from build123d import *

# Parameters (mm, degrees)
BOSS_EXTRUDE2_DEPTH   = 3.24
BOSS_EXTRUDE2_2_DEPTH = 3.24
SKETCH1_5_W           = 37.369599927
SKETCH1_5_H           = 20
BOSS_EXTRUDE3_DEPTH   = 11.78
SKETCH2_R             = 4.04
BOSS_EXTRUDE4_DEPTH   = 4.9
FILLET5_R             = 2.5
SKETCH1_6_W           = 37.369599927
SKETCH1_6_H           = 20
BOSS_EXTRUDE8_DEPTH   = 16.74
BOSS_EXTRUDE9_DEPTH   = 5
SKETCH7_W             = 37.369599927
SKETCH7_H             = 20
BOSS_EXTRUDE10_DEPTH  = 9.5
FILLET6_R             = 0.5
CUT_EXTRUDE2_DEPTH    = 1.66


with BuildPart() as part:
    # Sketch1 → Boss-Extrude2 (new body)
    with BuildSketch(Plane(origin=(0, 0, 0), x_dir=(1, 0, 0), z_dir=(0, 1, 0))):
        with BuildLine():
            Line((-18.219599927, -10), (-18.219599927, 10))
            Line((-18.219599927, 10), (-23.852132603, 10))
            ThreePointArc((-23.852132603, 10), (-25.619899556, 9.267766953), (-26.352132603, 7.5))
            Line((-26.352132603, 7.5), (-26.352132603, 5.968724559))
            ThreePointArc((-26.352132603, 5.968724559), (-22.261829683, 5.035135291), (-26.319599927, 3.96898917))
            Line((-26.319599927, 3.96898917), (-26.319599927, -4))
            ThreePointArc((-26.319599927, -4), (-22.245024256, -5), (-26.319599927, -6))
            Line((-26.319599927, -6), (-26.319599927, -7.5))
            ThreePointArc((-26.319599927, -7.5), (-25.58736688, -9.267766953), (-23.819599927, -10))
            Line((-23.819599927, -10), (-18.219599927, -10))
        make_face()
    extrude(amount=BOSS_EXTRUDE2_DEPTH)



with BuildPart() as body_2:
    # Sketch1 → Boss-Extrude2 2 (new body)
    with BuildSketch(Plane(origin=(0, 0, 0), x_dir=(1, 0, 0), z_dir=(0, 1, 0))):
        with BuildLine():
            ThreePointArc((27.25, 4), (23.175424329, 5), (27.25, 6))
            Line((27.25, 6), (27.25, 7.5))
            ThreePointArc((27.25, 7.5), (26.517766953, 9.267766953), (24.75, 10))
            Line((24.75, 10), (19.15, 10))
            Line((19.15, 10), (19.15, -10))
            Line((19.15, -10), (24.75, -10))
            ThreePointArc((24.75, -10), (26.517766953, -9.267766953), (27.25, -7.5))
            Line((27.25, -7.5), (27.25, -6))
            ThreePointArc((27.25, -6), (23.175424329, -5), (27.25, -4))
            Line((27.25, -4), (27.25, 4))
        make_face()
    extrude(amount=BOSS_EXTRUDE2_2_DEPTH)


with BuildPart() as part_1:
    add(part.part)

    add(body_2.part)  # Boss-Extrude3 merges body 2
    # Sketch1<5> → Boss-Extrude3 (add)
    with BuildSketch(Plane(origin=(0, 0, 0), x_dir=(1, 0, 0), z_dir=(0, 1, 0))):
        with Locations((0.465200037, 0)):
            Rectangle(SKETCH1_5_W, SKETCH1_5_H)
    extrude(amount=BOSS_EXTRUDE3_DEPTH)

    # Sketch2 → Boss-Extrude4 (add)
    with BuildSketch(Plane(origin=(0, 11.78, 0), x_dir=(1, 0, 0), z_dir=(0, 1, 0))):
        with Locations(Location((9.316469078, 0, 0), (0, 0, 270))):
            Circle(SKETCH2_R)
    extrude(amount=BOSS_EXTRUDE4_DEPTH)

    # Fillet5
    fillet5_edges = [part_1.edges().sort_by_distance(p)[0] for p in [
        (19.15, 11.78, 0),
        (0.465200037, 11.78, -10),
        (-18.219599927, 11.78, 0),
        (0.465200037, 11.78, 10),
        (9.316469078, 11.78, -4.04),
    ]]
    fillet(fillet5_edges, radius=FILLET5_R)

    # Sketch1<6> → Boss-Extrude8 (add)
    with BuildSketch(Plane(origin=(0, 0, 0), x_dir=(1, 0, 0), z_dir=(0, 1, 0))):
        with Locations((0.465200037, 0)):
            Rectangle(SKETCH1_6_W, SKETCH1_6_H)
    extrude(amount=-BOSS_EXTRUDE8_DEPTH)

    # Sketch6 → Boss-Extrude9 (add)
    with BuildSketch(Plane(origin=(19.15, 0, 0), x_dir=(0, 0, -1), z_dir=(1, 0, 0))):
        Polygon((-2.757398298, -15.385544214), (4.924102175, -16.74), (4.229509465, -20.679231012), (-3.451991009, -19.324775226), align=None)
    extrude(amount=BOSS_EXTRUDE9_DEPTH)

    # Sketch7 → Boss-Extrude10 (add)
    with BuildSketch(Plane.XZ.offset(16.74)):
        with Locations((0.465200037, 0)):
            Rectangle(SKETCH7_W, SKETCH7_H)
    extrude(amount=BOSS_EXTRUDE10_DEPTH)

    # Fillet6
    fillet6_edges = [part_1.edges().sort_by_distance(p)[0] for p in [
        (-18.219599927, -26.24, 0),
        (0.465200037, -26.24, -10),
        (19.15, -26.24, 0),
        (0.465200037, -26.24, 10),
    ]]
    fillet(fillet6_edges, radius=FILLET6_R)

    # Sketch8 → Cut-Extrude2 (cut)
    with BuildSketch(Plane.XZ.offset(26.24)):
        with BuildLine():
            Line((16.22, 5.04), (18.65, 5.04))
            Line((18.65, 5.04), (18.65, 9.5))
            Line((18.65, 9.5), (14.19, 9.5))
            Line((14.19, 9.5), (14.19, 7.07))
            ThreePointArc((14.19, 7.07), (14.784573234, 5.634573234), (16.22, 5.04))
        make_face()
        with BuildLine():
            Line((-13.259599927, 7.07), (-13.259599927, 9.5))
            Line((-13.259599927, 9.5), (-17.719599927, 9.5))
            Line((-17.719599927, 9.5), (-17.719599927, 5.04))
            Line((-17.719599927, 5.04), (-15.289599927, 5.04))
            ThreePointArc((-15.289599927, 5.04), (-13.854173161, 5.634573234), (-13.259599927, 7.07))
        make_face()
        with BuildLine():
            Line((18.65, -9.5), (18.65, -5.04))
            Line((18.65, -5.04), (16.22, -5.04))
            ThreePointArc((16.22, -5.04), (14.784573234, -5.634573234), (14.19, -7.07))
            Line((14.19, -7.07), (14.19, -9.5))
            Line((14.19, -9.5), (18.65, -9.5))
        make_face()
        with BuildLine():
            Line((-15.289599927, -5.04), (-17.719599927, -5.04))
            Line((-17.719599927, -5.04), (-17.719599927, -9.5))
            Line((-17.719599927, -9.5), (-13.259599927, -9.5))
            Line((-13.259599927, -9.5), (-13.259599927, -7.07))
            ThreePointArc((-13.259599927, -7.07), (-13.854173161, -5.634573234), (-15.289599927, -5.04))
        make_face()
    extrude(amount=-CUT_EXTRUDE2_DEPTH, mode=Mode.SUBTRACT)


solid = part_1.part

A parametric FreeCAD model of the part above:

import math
import FreeCAD as App
import Part
import Sketcher
from FreeCAD import Vector
Q = App.Units.Quantity


def edges_at(feature, points):
    """Names of the edges that pass closest to the given points."""
    edges = feature.Shape.Edges
    near = lambda p: min(range(len(edges)), key=lambda i: edges[i].distToShape(Part.Vertex(*p))[0])
    return sorted({f"Edge{near(p) + 1}" for p in points})


def add_polygon(sketch, points):
    """Adds a closed chain of lines whose ends are joined by coincident constraints."""
    first, n = sketch.GeometryCount, len(points)
    for a, b in zip(points, points[1:] + points[:1]):
        sketch.addGeometry(Part.LineSegment(App.Vector(*a, 0), App.Vector(*b, 0)), False)
    for i in range(n):
        sketch.addConstraint(Sketcher.Constraint("Coincident", first + i, 2, first + (i + 1) % n, 1))

doc = App.newDocument("Part")
body = doc.addObject("PartDesign::Body", "Body")

# Sketch on XZ plane
sketch1 = body.newObject("Sketcher::SketchObject", "Sketch")
sketch1.AttachmentSupport = (doc.getObject("XZ_Plane"), [""])
sketch1.MapMode = "FlatFace"
sketch1.addGeometry([
    Part.LineSegment(Vector(-18.2, 10, 0), Vector(-18.2, -10, 0)),  # 0
    Part.LineSegment(Vector(-18.2, -10, 0), Vector(-23.9, -10, 0)),  # 1
    Part.ArcOfCircle(Part.Circle(Vector(-23.9, -7.5, 0), Vector(0, 0, 1), 2.5), math.radians(180), math.radians(270)),  # 2
    Part.LineSegment(Vector(-26.4, -7.5, 0), Vector(-26.4, -6, 0)),  # 3
    Part.ArcOfCircle(Part.Circle(Vector(-24.4, -5, 0), Vector(0, 0, 1), 2.2), math.radians(-153), math.radians(151)),  # 4
    Part.LineSegment(Vector(-26.3, -4, 0), Vector(-26.3, 4, 0)),  # 5
    Part.ArcOfCircle(Part.Circle(Vector(-24.4, 5, 0), Vector(0, 0, 1), 2.2), math.radians(-152), math.radians(152)),  # 6
    Part.LineSegment(Vector(-26.3, 6, 0), Vector(-26.3, 7.5, 0)),  # 7
    Part.ArcOfCircle(Part.Circle(Vector(-23.8, 7.5, 0), Vector(0, 0, 1), 2.5), math.radians(90), math.radians(180)),  # 8
    Part.LineSegment(Vector(-23.8, 10, 0), Vector(-18.2, 10, 0)),  # 9
], False)
sketch1.addConstraint([
    Sketcher.Constraint("Coincident", 0, 2, 1, 1),
    Sketcher.Constraint("Tangent", 1, 2, 2, 2),
    Sketcher.Constraint("Tangent", 2, 1, 3, 1),
    Sketcher.Constraint("Coincident", 3, 2, 4, 1),
    Sketcher.Constraint("Coincident", 4, 2, 5, 1),
    Sketcher.Constraint("Coincident", 5, 2, 6, 1),
    Sketcher.Constraint("Coincident", 6, 2, 7, 1),
    Sketcher.Constraint("Tangent", 7, 2, 8, 2),
    Sketcher.Constraint("Tangent", 8, 1, 9, 1),
    Sketcher.Constraint("Coincident", 9, 2, 0, 1),
    Sketcher.Constraint("Vertical", 0),
    Sketcher.Constraint("Horizontal", 1),
    Sketcher.Constraint("Vertical", 3),
    Sketcher.Constraint("Vertical", 5),
    Sketcher.Constraint("Vertical", 7),
    Sketcher.Constraint("Horizontal", 9),
    Sketcher.Constraint("Equal", 4, 6),
    Sketcher.Constraint("Equal", 2, 8),
    Sketcher.Constraint("Vertical", 5, 2, 6, 2),
    Sketcher.Constraint("Radius", 2, Q("2.5 mm")),
    Sketcher.Constraint("DistanceY", 0, 2, 0, 1, Q("20 mm")),
    Sketcher.Constraint("Radius", 4, Q("2.16 mm")),
    Sketcher.Constraint("DistanceX", 9, 1, 9, 2, Q("5.6 mm")),
    Sketcher.Constraint("DistanceY", 7, 1, 7, 2, Q("1.5 mm")),
    Sketcher.Constraint("DistanceY", 4, 3, -1, 1, Q("5 mm")),
    Sketcher.Constraint("DistanceY", -1, 1, 6, 3, Q("5 mm")),
    Sketcher.Constraint("DistanceY", 0, 2, -1, 1, Q("10 mm")),
    Sketcher.Constraint("DistanceY", 5, 1, 5, 2, Q("7.968989 mm")),
    Sketcher.Constraint("DistanceX", 8, 3, -1, 1, Q("23.8196 mm")),
    Sketcher.Constraint("DistanceX", 1, 2, 1, 1, Q("5.632533 mm")),
])
pad1 = body.newObject("PartDesign::Pad", "Pad")
pad1.Profile = sketch1
pad1.Length = 3.24
pad1.Reversed = True
body2 = doc.addObject("PartDesign::Body", "Body001")

# Sketch on XZ plane
sketch2 = body2.newObject("Sketcher::SketchObject", "Sketch001")
sketch2.AttachmentSupport = (doc.getObject("XZ_Plane001"), [""])
sketch2.MapMode = "FlatFace"
sketch2.addGeometry([
    Part.ArcOfCircle(Part.Circle(Vector(25.3, -5, 0), Vector(0, 0, 1), 2.2), math.radians(28), math.radians(332)),  # 0
    Part.LineSegment(Vector(27.2, -6, 0), Vector(27.2, -7.5, 0)),  # 1
    Part.ArcOfCircle(Part.Circle(Vector(24.8, -7.5, 0), Vector(0, 0, 1), 2.5), math.radians(-90), math.radians(0)),  # 2
    Part.LineSegment(Vector(24.8, -10, 0), Vector(19.1, -10, 0)),  # 3
    Part.LineSegment(Vector(19.1, -10, 0), Vector(19.1, 10, 0)),  # 4
    Part.LineSegment(Vector(19.1, 10, 0), Vector(24.8, 10, 0)),  # 5
    Part.ArcOfCircle(Part.Circle(Vector(24.8, 7.5, 0), Vector(0, 0, 1), 2.5), math.radians(0), math.radians(90)),  # 6
    Part.LineSegment(Vector(27.2, 7.5, 0), Vector(27.2, 6, 0)),  # 7
    Part.ArcOfCircle(Part.Circle(Vector(25.3, 5, 0), Vector(0, 0, 1), 2.2), math.radians(28), math.radians(332)),  # 8
    Part.LineSegment(Vector(27.2, 4, 0), Vector(27.2, -4, 0)),  # 9
], False)
sketch2.addConstraint([
    Sketcher.Constraint("Coincident", 0, 2, 1, 1),
    Sketcher.Constraint("Tangent", 1, 2, 2, 2),
    Sketcher.Constraint("Tangent", 2, 1, 3, 1),
    Sketcher.Constraint("Coincident", 3, 2, 4, 1),
    Sketcher.Constraint("Coincident", 4, 2, 5, 1),
    Sketcher.Constraint("Tangent", 5, 2, 6, 2),
    Sketcher.Constraint("Tangent", 6, 1, 7, 1),
    Sketcher.Constraint("Coincident", 7, 2, 8, 1),
    Sketcher.Constraint("Coincident", 8, 2, 9, 1),
    Sketcher.Constraint("Coincident", 9, 2, 0, 1),
    Sketcher.Constraint("Vertical", 1),
    Sketcher.Constraint("Horizontal", 3),
    Sketcher.Constraint("Vertical", 4),
    Sketcher.Constraint("Horizontal", 5),
    Sketcher.Constraint("Vertical", 7),
    Sketcher.Constraint("Vertical", 9),
    Sketcher.Constraint("Equal", 2, 6),
    Sketcher.Constraint("Equal", 0, 8),
    Sketcher.Constraint("Symmetric", 2, 3, 6, 3, -1),
    Sketcher.Constraint("Symmetric", 0, 3, 8, 3, -1),
    Sketcher.Constraint("Vertical", 7, 2, 8, 2),
    Sketcher.Constraint("Radius", 2, Q("2.5 mm")),
    Sketcher.Constraint("DistanceY", 4, 1, 4, 2, Q("20 mm")),
    Sketcher.Constraint("DistanceY", 9, 2, 9, 1, Q("8 mm")),
    Sketcher.Constraint("Radius", 0, Q("2.16 mm")),
    Sketcher.Constraint("DistanceX", 3, 2, 3, 1, Q("5.6 mm")),
    Sketcher.Constraint("DistanceY", 1, 2, 1, 1, Q("1.5 mm")),
    Sketcher.Constraint("DistanceX", -1, 1, 2, 3, Q("24.75 mm")),
])
pad2 = body2.newObject("PartDesign::Pad", "Pad001")
pad2.Profile = sketch2
pad2.Length = 3.24
pad2.Reversed = True
body.AllowCompound = True
doc.recompute()

boolean = body.newObject("PartDesign::Boolean", "Boolean")
boolean.Type = "Fuse"
boolean.addObjects([body2])

# Sketch on XZ plane
sketch3 = body.newObject("Sketcher::SketchObject", "Sketch002")
sketch3.AttachmentSupport = (doc.getObject("XZ_Plane"), [""])
sketch3.MapMode = "FlatFace"
add_polygon(sketch3, [(-18, -10), (-18, 10), (19, 10), (19, -10)])  # lines 0-3
sketch3.addConstraint([
    Sketcher.Constraint("Vertical", 0),
    Sketcher.Constraint("Horizontal", 1),
    Sketcher.Constraint("Vertical", 2),
    Sketcher.Constraint("Horizontal", 3),
    Sketcher.Constraint("DistanceY", 0, 1, 0, 2, Q("20 mm")),
    Sketcher.Constraint("DistanceY", -1, 1, 0, 2, Q("10 mm")),
    Sketcher.Constraint("DistanceX", -1, 1, 1, 2, Q("19.15 mm")),
    Sketcher.Constraint("DistanceX", 1, 1, 1, 2, Q("37.3696 mm")),
])
pad3 = body.newObject("PartDesign::Pad", "Pad002")
pad3.Profile = sketch3
pad3.Length = 11.78
pad3.Reversed = True

# Sketch on XZ plane
sketch4 = body.newObject("Sketcher::SketchObject", "Sketch003")
sketch4.AttachmentSupport = (doc.getObject("XZ_Plane"), [""])
sketch4.MapMode = "FlatFace"
sketch4.AttachmentOffset = App.Placement(Vector(0, 0, -11.78), App.Rotation())
sketch4.addGeometry(Part.Circle(Vector(9.3, 0, 0), Vector(0, 0, 1), 4), False)
sketch4.addConstraint([
    Sketcher.Constraint("PointOnObject", 0, 3, -1),
    Sketcher.Constraint("Diameter", 0, Q("8.08 mm")),
    Sketcher.Constraint("DistanceX", -1, 1, 0, 3, Q("9.316469 mm")),
])
pad4 = body.newObject("PartDesign::Pad", "Pad003")
pad4.Profile = sketch4
pad4.Length = 4.9
pad4.Reversed = True
doc.recompute()

fillet = body.newObject("PartDesign::Fillet", "Fillet")
fillet.Base = (pad4, edges_at(pad4, [
    (19.15, 11.78, 0),
    (0.465, 11.78, -10),
    (-18.22, 11.78, 0),
    (0.465, 11.78, 10),
    (9.316, 11.78, -4.04),
]))
fillet.Radius = 2.5

# Sketch on XZ plane
sketch5 = body.newObject("Sketcher::SketchObject", "Sketch004")
sketch5.AttachmentSupport = (doc.getObject("XZ_Plane"), [""])
sketch5.MapMode = "FlatFace"
add_polygon(sketch5, [(-18, -10), (-18, 10), (19, 10), (19, -10)])  # lines 0-3
sketch5.addConstraint([
    Sketcher.Constraint("Vertical", 0),
    Sketcher.Constraint("Horizontal", 1),
    Sketcher.Constraint("Vertical", 2),
    Sketcher.Constraint("Horizontal", 3),
    Sketcher.Constraint("DistanceY", 0, 1, 0, 2, Q("20 mm")),
    Sketcher.Constraint("DistanceY", -1, 1, 0, 2, Q("10 mm")),
    Sketcher.Constraint("DistanceX", -1, 1, 1, 2, Q("19.15 mm")),
    Sketcher.Constraint("DistanceX", 1, 1, 1, 2, Q("37.3696 mm")),
])
pad5 = body.newObject("PartDesign::Pad", "Pad004")
pad5.Profile = sketch5
pad5.Length = 16.74

# Sketch on YZ plane
sketch6 = body.newObject("Sketcher::SketchObject", "Sketch005")
sketch6.AttachmentSupport = (doc.getObject("YZ_Plane"), [""])
sketch6.MapMode = "FlatFace"
sketch6.AttachmentOffset = App.Placement(Vector(0, 0, 19.15), App.Rotation())
add_polygon(sketch6, [(-16.7, -4.9), (-15.4, 2.8), (-19.3, 3.5), (-20.7, -4.2)])  # lines 0-3
sketch6.addConstraint([
    Sketcher.Constraint("Perpendicular", 0, 1),
    Sketcher.Constraint("Perpendicular", 1, 2),
    Sketcher.Constraint("Perpendicular", 2, 3),
    Sketcher.Constraint("Angle", 0, Q("80 deg")),
    Sketcher.Constraint("Distance", 1, Q("4 mm")),
    Sketcher.Constraint("Distance", 0, Q("7.8 mm")),
    Sketcher.Constraint("DistanceX", 3, 2, -1, 1, Q("16.74 mm")),
    Sketcher.Constraint("DistanceY", -1, 1, 0, 2, Q("2.757398 mm")),
])
pad6 = body.newObject("PartDesign::Pad", "Pad005")
pad6.Profile = sketch6
pad6.Length = 5

# Sketch on XZ plane
sketch7 = body.newObject("Sketcher::SketchObject", "Sketch006")
sketch7.AttachmentSupport = (doc.getObject("XZ_Plane"), [""])
sketch7.MapMode = "FlatFace"
sketch7.AttachmentOffset = App.Placement(Vector(0, 0, 16.74), App.Rotation())
add_polygon(sketch7, [(-18, 10), (-18, -10), (19, -10), (19, 10)])  # lines 0-3
sketch7.addConstraint([
    Sketcher.Constraint("Vertical", 0),
    Sketcher.Constraint("Horizontal", 1),
    Sketcher.Constraint("Vertical", 2),
    Sketcher.Constraint("Horizontal", 3),
    Sketcher.Constraint("DistanceY", 0, 2, 0, 1, Q("20 mm")),
    Sketcher.Constraint("DistanceY", 0, 2, -1, 1, Q("10 mm")),
    Sketcher.Constraint("DistanceX", -1, 1, 1, 2, Q("19.15 mm")),
    Sketcher.Constraint("DistanceX", 1, 1, 1, 2, Q("37.3696 mm")),
])
pad7 = body.newObject("PartDesign::Pad", "Pad006")
pad7.Profile = sketch7
pad7.Length = 9.5
doc.recompute()

fillet2 = body.newObject("PartDesign::Fillet", "Fillet001")
fillet2.Base = (pad7, edges_at(pad7, [
    (-18.22, -26.24, 0),
    (0.465, -26.24, -10),
    (19.15, -26.24, 0),
    (0.465, -26.24, 10),
]))
fillet2.Radius = 0.5

# Sketch on XZ plane
sketch8 = body.newObject("Sketcher::SketchObject", "Sketch007")
sketch8.AttachmentSupport = (doc.getObject("XZ_Plane"), [""])
sketch8.MapMode = "FlatFace"
sketch8.AttachmentOffset = App.Placement(Vector(0, 0, 26.24), App.Rotation())
sketch8.addGeometry([
    Part.LineSegment(Vector(16.2, 5, 0), Vector(18.6, 5, 0)),  # 0
    Part.LineSegment(Vector(18.6, 5, 0), Vector(18.6, 9.5, 0)),  # 1
    Part.LineSegment(Vector(18.6, 9.5, 0), Vector(14.2, 9.5, 0)),  # 2
    Part.LineSegment(Vector(14.2, 9.5, 0), Vector(14.2, 7.1, 0)),  # 3
    Part.ArcOfCircle(Part.Circle(Vector(16.2, 7.1, 0), Vector(0, 0, 1), 2), math.radians(180), math.radians(270)),  # 4
    Part.LineSegment(Vector(-13.3, 7.1, 0), Vector(-13.3, 9.5, 0)),  # 5
    Part.LineSegment(Vector(-13.3, 9.5, 0), Vector(-17.7, 9.5, 0)),  # 6
    Part.LineSegment(Vector(-17.7, 9.5, 0), Vector(-17.7, 5, 0)),  # 7
    Part.LineSegment(Vector(-17.7, 5, 0), Vector(-15.3, 5, 0)),  # 8
    Part.ArcOfCircle(Part.Circle(Vector(-15.3, 7.1, 0), Vector(0, 0, 1), 2), math.radians(-90), math.radians(0)),  # 9
    Part.LineSegment(Vector(18.6, -9.5, 0), Vector(18.6, -5, 0)),  # 10
    Part.LineSegment(Vector(18.6, -5, 0), Vector(16.2, -5, 0)),  # 11
    Part.ArcOfCircle(Part.Circle(Vector(16.2, -7.1, 0), Vector(0, 0, 1), 2), math.radians(90), math.radians(180)),  # 12
    Part.LineSegment(Vector(14.2, -7.1, 0), Vector(14.2, -9.5, 0)),  # 13
    Part.LineSegment(Vector(14.2, -9.5, 0), Vector(18.6, -9.5, 0)),  # 14
    Part.LineSegment(Vector(-15.3, -5, 0), Vector(-17.7, -5, 0)),  # 15
    Part.LineSegment(Vector(-17.7, -5, 0), Vector(-17.7, -9.5, 0)),  # 16
    Part.LineSegment(Vector(-17.7, -9.5, 0), Vector(-13.3, -9.5, 0)),  # 17
    Part.LineSegment(Vector(-13.3, -9.5, 0), Vector(-13.3, -7.1, 0)),  # 18
    Part.ArcOfCircle(Part.Circle(Vector(-15.3, -7.1, 0), Vector(0, 0, 1), 2), math.radians(0), math.radians(90)),  # 19
], False)
sketch8.addConstraint([
    Sketcher.Constraint("Coincident", 0, 2, 1, 1),
    Sketcher.Constraint("Coincident", 1, 2, 2, 1),
    Sketcher.Constraint("Coincident", 2, 2, 3, 1),
    Sketcher.Constraint("Tangent", 3, 2, 4, 1),
    Sketcher.Constraint("Tangent", 4, 2, 0, 1),
    Sketcher.Constraint("Coincident", 5, 2, 6, 1),
    Sketcher.Constraint("Coincident", 6, 2, 7, 1),
    Sketcher.Constraint("Coincident", 7, 2, 8, 1),
    Sketcher.Constraint("Tangent", 8, 2, 9, 1),
    Sketcher.Constraint("Tangent", 9, 2, 5, 1),
    Sketcher.Constraint("Coincident", 10, 2, 11, 1),
    Sketcher.Constraint("Tangent", 11, 2, 12, 1),
    Sketcher.Constraint("Tangent", 12, 2, 13, 1),
    Sketcher.Constraint("Coincident", 13, 2, 14, 1),
    Sketcher.Constraint("Coincident", 14, 2, 10, 1),
    Sketcher.Constraint("Coincident", 15, 2, 16, 1),
    Sketcher.Constraint("Coincident", 16, 2, 17, 1),
    Sketcher.Constraint("Coincident", 17, 2, 18, 1),
    Sketcher.Constraint("Tangent", 18, 2, 19, 1),
    Sketcher.Constraint("Tangent", 19, 2, 15, 1),
    Sketcher.Constraint("Horizontal", 0),
    Sketcher.Constraint("Vertical", 1),
    Sketcher.Constraint("Horizontal", 2),
    Sketcher.Constraint("Vertical", 3),
    Sketcher.Constraint("Vertical", 5),
    Sketcher.Constraint("Horizontal", 6),
    Sketcher.Constraint("Vertical", 7),
    Sketcher.Constraint("Horizontal", 8),
    Sketcher.Constraint("Vertical", 10),
    Sketcher.Constraint("Horizontal", 11),
    Sketcher.Constraint("Vertical", 13),
    Sketcher.Constraint("Horizontal", 14),
    Sketcher.Constraint("Horizontal", 15),
    Sketcher.Constraint("Vertical", 16),
    Sketcher.Constraint("Horizontal", 17),
    Sketcher.Constraint("Vertical", 18),
    Sketcher.Constraint("Equal", 4, 9),
    Sketcher.Constraint("Equal", 9, 12),
    Sketcher.Constraint("Equal", 12, 19),
    Sketcher.Constraint("Symmetric", 4, 3, 12, 3, -1),
    Sketcher.Constraint("Symmetric", 9, 3, 19, 3, -1),
    Sketcher.Constraint("Symmetric", 1, 2, 14, 2, -1),
    Sketcher.Constraint("Symmetric", 6, 2, 16, 2, -1),
    Sketcher.Constraint("Horizontal", 4, 3, 9, 3),
    Sketcher.Constraint("Horizontal", 2, 2, 5, 2),
    Sketcher.Constraint("Equal", 2, 6),
    Sketcher.Constraint("Equal", 17, 1),
    Sketcher.Constraint("Radius", 4, Q("2.03 mm")),
    Sketcher.Constraint("DistanceX", 0, 1, 0, 2, Q("2.43 mm")),
    Sketcher.Constraint("DistanceY", -1, 1, 1, 2, Q("9.5 mm")),
    Sketcher.Constraint("DistanceX", -1, 1, 4, 3, Q("16.22 mm")),
    Sketcher.Constraint("DistanceX", 9, 3, -1, 1, Q("15.2896 mm")),
])
pocket1 = body.newObject("PartDesign::Pocket", "Pocket")
pocket1.Profile = sketch8
pocket1.Length = 1.66

doc.recompute()
